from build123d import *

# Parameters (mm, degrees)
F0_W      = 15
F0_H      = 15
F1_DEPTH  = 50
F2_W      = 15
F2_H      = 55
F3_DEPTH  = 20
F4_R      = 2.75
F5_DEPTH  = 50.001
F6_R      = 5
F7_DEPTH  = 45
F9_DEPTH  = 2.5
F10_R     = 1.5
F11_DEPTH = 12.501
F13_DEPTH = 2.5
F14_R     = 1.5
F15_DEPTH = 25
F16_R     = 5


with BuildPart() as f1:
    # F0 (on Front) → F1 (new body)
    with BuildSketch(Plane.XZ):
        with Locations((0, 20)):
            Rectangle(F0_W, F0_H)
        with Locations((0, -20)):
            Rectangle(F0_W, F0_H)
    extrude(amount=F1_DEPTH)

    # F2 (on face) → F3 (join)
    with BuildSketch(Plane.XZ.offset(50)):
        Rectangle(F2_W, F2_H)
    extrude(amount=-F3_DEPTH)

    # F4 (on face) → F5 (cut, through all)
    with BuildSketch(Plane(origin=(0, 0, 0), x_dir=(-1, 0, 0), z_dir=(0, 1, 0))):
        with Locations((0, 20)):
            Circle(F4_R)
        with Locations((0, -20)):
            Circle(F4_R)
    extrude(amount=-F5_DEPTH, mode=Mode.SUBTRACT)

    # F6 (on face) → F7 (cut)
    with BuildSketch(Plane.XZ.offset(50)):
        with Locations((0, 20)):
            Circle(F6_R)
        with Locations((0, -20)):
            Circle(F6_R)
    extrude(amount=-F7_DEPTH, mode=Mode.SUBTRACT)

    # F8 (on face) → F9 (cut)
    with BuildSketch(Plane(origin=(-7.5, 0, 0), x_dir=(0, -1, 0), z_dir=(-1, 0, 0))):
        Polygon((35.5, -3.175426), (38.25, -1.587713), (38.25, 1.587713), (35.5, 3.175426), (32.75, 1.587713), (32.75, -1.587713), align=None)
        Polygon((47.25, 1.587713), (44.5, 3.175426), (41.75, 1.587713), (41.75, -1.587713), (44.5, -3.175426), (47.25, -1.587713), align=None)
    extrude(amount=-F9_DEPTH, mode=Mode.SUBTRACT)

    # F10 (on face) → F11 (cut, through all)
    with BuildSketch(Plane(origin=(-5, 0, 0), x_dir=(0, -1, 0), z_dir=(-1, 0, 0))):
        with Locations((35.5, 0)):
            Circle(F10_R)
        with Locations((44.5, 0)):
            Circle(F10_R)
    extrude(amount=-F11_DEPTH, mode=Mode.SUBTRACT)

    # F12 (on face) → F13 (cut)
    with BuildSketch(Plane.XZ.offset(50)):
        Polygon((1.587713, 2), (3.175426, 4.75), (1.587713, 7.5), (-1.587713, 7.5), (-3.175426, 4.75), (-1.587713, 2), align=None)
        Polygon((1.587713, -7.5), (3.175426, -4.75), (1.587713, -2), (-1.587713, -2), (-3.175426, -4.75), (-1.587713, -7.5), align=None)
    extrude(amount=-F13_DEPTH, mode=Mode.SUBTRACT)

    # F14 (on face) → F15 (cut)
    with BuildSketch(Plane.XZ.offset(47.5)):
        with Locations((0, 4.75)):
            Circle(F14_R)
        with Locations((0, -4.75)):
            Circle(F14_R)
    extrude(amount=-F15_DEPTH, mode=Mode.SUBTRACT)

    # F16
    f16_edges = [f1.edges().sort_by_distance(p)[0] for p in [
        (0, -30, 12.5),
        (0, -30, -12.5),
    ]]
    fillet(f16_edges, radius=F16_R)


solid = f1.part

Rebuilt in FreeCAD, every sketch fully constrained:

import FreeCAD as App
import Part
import Sketcher
from FreeCAD import Vector
Q = App.Units.Quantity


def edges_at(feature, points):
    """Names of the edges that pass closest to the given points."""
    edges = feature.Shape.Edges
    near = lambda p: min(range(len(edges)), key=lambda i: edges[i].distToShape(Part.Vertex(*p))[0])
    return sorted({f"Edge{near(p) + 1}" for p in points})

doc = App.newDocument("Part")
params = doc.addObject("Spreadsheet::Sheet", "Params")
for row, (alias, value) in enumerate([
    ("sketch1_width", "15 mm"),
    ("pad1_length", "50 mm"),
    ("sketch2_width", "15 mm"),
    ("sketch2_height", "55 mm"),
    ("pad2_length", "20 mm"),
    ("sketch3_diameter", "5.5 mm"),
    ("sketch4_diameter", "10 mm"),
    ("pocket2_length", "45 mm"),
    ("pocket3_length", "2.5 mm"),
    ("sketch6_diameter", "3 mm"),
    ("pocket5_length", "2.5 mm"),
    ("sketch8_diameter", "3 mm"),
    ("pocket6_length", "25 mm"),
    ("fillet_radius", "5 mm"),
], start=1):
    params.set(f"A{row}", alias)
    params.set(f"B{row}", "=" + value)
    params.setAlias(f"B{row}", alias)

body = doc.addObject("PartDesign::Body", "Body")
body.AllowCompound = True

# Sketch on XZ plane
sketch1 = body.newObject("Sketcher::SketchObject", "Sketch")
sketch1.AttachmentSupport = (doc.getObject("XZ_Plane"), [""])
sketch1.MapMode = "FlatFace"
sketch1.addGeometry([
    Part.LineSegment(Vector(-8, 28, 0), Vector(-8, 12, 0)),  # 0
    Part.LineSegment(Vector(-8, 12, 0), Vector(8, 12, 0)),  # 1
    Part.LineSegment(Vector(8, 12, 0), Vector(8, 28, 0)),  # 2
    Part.LineSegment(Vector(8, 28, 0), Vector(-8, 28, 0)),  # 3
    Part.LineSegment(Vector(-8, -12, 0), Vector(-8, -28, 0)),  # 4
    Part.LineSegment(Vector(-8, -28, 0), Vector(8, -28, 0)),  # 5
    Part.LineSegment(Vector(8, -28, 0), Vector(8, -12, 0)),  # 6
    Part.LineSegment(Vector(8, -12, 0), Vector(-8, -12, 0)),  # 7
], False)
sketch1.addConstraint([
    Sketcher.Constraint("Coincident", 0, 2, 1, 1),
    Sketcher.Constraint("Coincident", 1, 2, 2, 1),
    Sketcher.Constraint("Coincident", 2, 2, 3, 1),
    Sketcher.Constraint("Coincident", 3, 2, 0, 1),
    Sketcher.Constraint("Coincident", 4, 2, 5, 1),
    Sketcher.Constraint("Coincident", 5, 2, 6, 1),
    Sketcher.Constraint("Coincident", 6, 2, 7, 1),
    Sketcher.Constraint("Coincident", 7, 2, 4, 1),
    Sketcher.Constraint("Vertical", 0),
    Sketcher.Constraint("Horizontal", 1),
    Sketcher.Constraint("Vertical", 2),
    Sketcher.Constraint("Horizontal", 3),
    Sketcher.Constraint("Vertical", 4),
    Sketcher.Constraint("Horizontal", 5),
    Sketcher.Constraint("Vertical", 6),
    Sketcher.Constraint("Horizontal", 7),
    Sketcher.Constraint("Symmetric", 2, 2, 4, 2, -1, 1),
    Sketcher.Constraint("Symmetric", 0, 2, 6, 2, -1, 1),
    Sketcher.Constraint("Vertical", 3, 2, 4, 2),
    Sketcher.Constraint("Equal", 7, 0),
    Sketcher.Constraint("DistanceX", 1, 1, 1, 2, 15.0),
    Sketcher.Constraint("DistanceY", 4, 2, 0, 2, 40.0),
])
sketch1.setExpression("Constraints[20]", "Params.sketch1_width")
pad1 = body.newObject("PartDesign::Pad", "Pad")
pad1.Profile = sketch1
pad1.setExpression("Length", "Params.pad1_length")

# Sketch on XZ plane
sketch2 = body.newObject("Sketcher::SketchObject", "Sketch001")
sketch2.AttachmentSupport = (doc.getObject("XZ_Plane"), [""])
sketch2.MapMode = "FlatFace"
sketch2.AttachmentOffset = App.Placement(Vector(0, 0, 50), App.Rotation())
sketch2.addGeometry([
    Part.LineSegment(Vector(-8, 28, 0), Vector(-8, -28, 0)),
    Part.LineSegment(Vector(-8, -28, 0), Vector(8, -28, 0)),
    Part.LineSegment(Vector(8, -28, 0), Vector(8, 28, 0)),
    Part.LineSegment(Vector(8, 28, 0), Vector(-8, 28, 0)),
], False)
sketch2.addConstraint([
    Sketcher.Constraint("Coincident", 0, 2, 1, 1),
    Sketcher.Constraint("Coincident", 1, 2, 2, 1),
    Sketcher.Constraint("Coincident", 2, 2, 3, 1),
    Sketcher.Constraint("Coincident", 3, 2, 0, 1),
    Sketcher.Constraint("Vertical", 0),
    Sketcher.Constraint("Horizontal", 1),
    Sketcher.Constraint("Vertical", 2),
    Sketcher.Constraint("Horizontal", 3),
    Sketcher.Constraint("Symmetric", 0, 2, 2, 2, -1, 1),
    Sketcher.Constraint("DistanceX", 1, 1, 1, 2, 15.0),
    Sketcher.Constraint("DistanceY", 0, 2, 0, 1, 55.0),
])
sketch2.setExpression("Constraints[9]", "Params.sketch2_width")
sketch2.setExpression("Constraints[10]", "Params.sketch2_height")
pad2 = body.newObject("PartDesign::Pad", "Pad001")
pad2.Profile = sketch2
pad2.setExpression("Length", "Params.pad2_length")
pad2.Reversed = True

# Sketch on XZ plane
sketch3 = body.newObject("Sketcher::SketchObject", "Sketch002")
sketch3.AttachmentSupport = (doc.getObject("XZ_Plane"), [""])
sketch3.MapMode = "FlatFace"
sketch3.addGeometry([
    Part.Circle(Vector(0, 20, 0), Vector(0, 0, 1), 2.8),
    Part.Circle(Vector(0, -20, 0), Vector(0, 0, 1), 2.8),
], False)
sketch3.addConstraint([
    Sketcher.Constraint("Equal", 0, 1),
    Sketcher.Constraint("Symmetric", 0, 3, 1, 3, -1, 1),
    Sketcher.Constraint("PointOnObject", 0, 3, -2),
    Sketcher.Constraint("Diameter", 0, 5.5),
    Sketcher.Constraint("DistanceY", -1, 1, 0, 3, 20.0),
])
sketch3.setExpression("Constraints[3]", "Params.sketch3_diameter")
pocket1 = body.newObject("PartDesign::Pocket", "Pocket")
pocket1.Profile = sketch3
pocket1.Type = "ThroughAll"
pocket1.Reversed = True

# Sketch on XZ plane
sketch4 = body.newObject("Sketcher::SketchObject", "Sketch003")
sketch4.AttachmentSupport = (doc.getObject("XZ_Plane"), [""])
sketch4.MapMode = "FlatFace"
sketch4.AttachmentOffset = App.Placement(Vector(0, 0, 50), App.Rotation())
sketch4.addGeometry([
    Part.Circle(Vector(0, 20, 0), Vector(0, 0, 1), 5),
    Part.Circle(Vector(0, -20, 0), Vector(0, 0, 1), 5),
], False)
sketch4.addConstraint([
    Sketcher.Constraint("Equal", 0, 1),
    Sketcher.Constraint("Symmetric", 0, 3, 1, 3, -1, 1),
    Sketcher.Constraint("PointOnObject", 0, 3, -2),
    Sketcher.Constraint("Diameter", 0, 10.0),
    Sketcher.Constraint("DistanceY", -1, 1, 0, 3, 20.0),
])
sketch4.setExpression("Constraints[3]", "Params.sketch4_diameter")
pocket2 = body.newObject("PartDesign::Pocket", "Pocket001")
pocket2.Profile = sketch4
pocket2.setExpression("Length", "Params.pocket2_length")

# Sketch on YZ plane
sketch5 = body.newObject("Sketcher::SketchObject", "Sketch004")
sketch5.AttachmentSupport = (doc.getObject("YZ_Plane"), [""])
sketch5.MapMode = "FlatFace"
sketch5.AttachmentOffset = App.Placement(Vector(0, 0, -7.5), App.Rotation())
sketch5.addGeometry([
    Part.LineSegment(Vector(-35.5, -3.2, 0), Vector(-38.2, -1.6, 0)),  # 0
    Part.LineSegment(Vector(-38.2, -1.6, 0), Vector(-38.2, 1.6, 0)),  # 1
    Part.LineSegment(Vector(-38.2, 1.6, 0), Vector(-35.5, 3.2, 0)),  # 2
    Part.LineSegment(Vector(-35.5, 3.2, 0), Vector(-32.8, 1.6, 0)),  # 3
    Part.LineSegment(Vector(-32.8, 1.6, 0), Vector(-32.8, -1.6, 0)),  # 4
    Part.LineSegment(Vector(-32.8, -1.6, 0), Vector(-35.5, -3.2, 0)),  # 5
    Part.LineSegment(Vector(-47.2, 1.6, 0), Vector(-44.5, 3.2, 0)),  # 6
    Part.LineSegment(Vector(-44.5, 3.2, 0), Vector(-41.8, 1.6, 0)),  # 7
    Part.LineSegment(Vector(-41.8, 1.6, 0), Vector(-41.8, -1.6, 0)),  # 8
    Part.LineSegment(Vector(-41.8, -1.6, 0), Vector(-44.5, -3.2, 0)),  # 9
    Part.LineSegment(Vector(-44.5, -3.2, 0), Vector(-47.2, -1.6, 0)),  # 10
    Part.LineSegment(Vector(-47.2, -1.6, 0), Vector(-47.2, 1.6, 0)),  # 11
], False)
sketch5.addConstraint([
    Sketcher.Constraint("Coincident", 0, 2, 1, 1),
    Sketcher.Constraint("Coincident", 1, 2, 2, 1),
    Sketcher.Constraint("Coincident", 2, 2, 3, 1),
    Sketcher.Constraint("Coincident", 3, 2, 4, 1),
    Sketcher.Constraint("Coincident", 4, 2, 5, 1),
    Sketcher.Constraint("Coincident", 5, 2, 0, 1),
    Sketcher.Constraint("Coincident", 6, 2, 7, 1),
    Sketcher.Constraint("Coincident", 7, 2, 8, 1),
    Sketcher.Constraint("Coincident", 8, 2, 9, 1),
    Sketcher.Constraint("Coincident", 9, 2, 10, 1),
    Sketcher.Constraint("Coincident", 10, 2, 11, 1),
    Sketcher.Constraint("Coincident", 11, 2, 6, 1),
    Sketcher.Constraint("Vertical", 1),
    Sketcher.Constraint("Vertical", 4),
    Sketcher.Constraint("Vertical", 8),
    Sketcher.Constraint("Vertical", 11),
    Sketcher.Constraint("Symmetric", 2, 2, 5, 2, -1),
    Sketcher.Constraint("Symmetric", 6, 2, 9, 2, -1),
    Sketcher.Constraint("Parallel", 0, 3),
    Sketcher.Constraint("Parallel", 2, 5),
    Sketcher.Constraint("Parallel", 5, 6),
    Sketcher.Constraint("Parallel", 3, 7),
    Sketcher.Constraint("Parallel", 6, 9),
    Sketcher.Constraint("Parallel", 7, 10),
    Sketcher.Constraint("Horizontal", 1, 2, 3, 2),
    Sketcher.Constraint("Horizontal", 0, 2, 4, 2),
    Sketcher.Constraint("Horizontal", 2, 2, 6, 2),
    Sketcher.Constraint("Horizontal", 3, 2, 7, 2),
    Sketcher.Constraint("Horizontal", 8, 2, 10, 2),
    Sketcher.Constraint("Angle", 0, Q("150.000004 deg")),
    Sketcher.Constraint("DistanceX", 6, 2, 2, 2, 9.0),
    Sketcher.Constraint("DistanceX", 2, 2, -1, 1, 35.5),
    Sketcher.Constraint("DistanceX", 1, 2, 3, 2, 5.5),
    Sketcher.Constraint("DistanceY", 1, 1, 1, 2, 3.175426),
])
pocket3 = body.newObject("PartDesign::Pocket", "Pocket002")
pocket3.Profile = sketch5
pocket3.setExpression("Length", "Params.pocket3_length")
pocket3.Reversed = True

# Sketch on YZ plane
sketch6 = body.newObject("Sketcher::SketchObject", "Sketch005")
sketch6.AttachmentSupport = (doc.getObject("YZ_Plane"), [""])
sketch6.MapMode = "FlatFace"
sketch6.AttachmentOffset = App.Placement(Vector(0, 0, -5), App.Rotation())
sketch6.addGeometry([
    Part.Circle(Vector(-35.5, 0, 0), Vector(0, 0, 1), 1.5),
    Part.Circle(Vector(-44.5, 0, 0), Vector(0, 0, 1), 1.5),
], False)
sketch6.addConstraint([
    Sketcher.Constraint("Equal", 0, 1),
    Sketcher.Constraint("PointOnObject", 0, 3, -1),
    Sketcher.Constraint("PointOnObject", 1, 3, -1),
    Sketcher.Constraint("Diameter", 0, 3.0),
    Sketcher.Constraint("DistanceX", 1, 3, 0, 3, 9.0),
    Sketcher.Constraint("DistanceX", 0, 3, -1, 1, 35.5),
])
sketch6.setExpression("Constraints[3]", "Params.sketch6_diameter")
pocket4 = body.newObject("PartDesign::Pocket", "Pocket003")
pocket4.Profile = sketch6
pocket4.Type = "ThroughAll"
pocket4.Reversed = True

# Sketch on XZ plane
sketch7 = body.newObject("Sketcher::SketchObject", "Sketch006")
sketch7.AttachmentSupport = (doc.getObject("XZ_Plane"), [""])
sketch7.MapMode = "FlatFace"
sketch7.AttachmentOffset = App.Placement(Vector(0, 0, 50), App.Rotation())
sketch7.addGeometry([
    Part.LineSegment(Vector(1.6, 2, 0), Vector(3.2, 4.8, 0)),  # 0
    Part.LineSegment(Vector(3.2, 4.8, 0), Vector(1.6, 7.5, 0)),  # 1
    Part.LineSegment(Vector(1.6, 7.5, 0), Vector(-1.6, 7.5, 0)),  # 2
    Part.LineSegment(Vector(-1.6, 7.5, 0), Vector(-3.2, 4.8, 0)),  # 3
    Part.LineSegment(Vector(-3.2, 4.8, 0), Vector(-1.6, 2, 0)),  # 4
    Part.LineSegment(Vector(-1.6, 2, 0), Vector(1.6, 2, 0)),  # 5
    Part.LineSegment(Vector(1.6, -7.5, 0), Vector(3.2, -4.8, 0)),  # 6
    Part.LineSegment(Vector(3.2, -4.8, 0), Vector(1.6, -2, 0)),  # 7
    Part.LineSegment(Vector(1.6, -2, 0), Vector(-1.6, -2, 0)),  # 8
    Part.LineSegment(Vector(-1.6, -2, 0), Vector(-3.2, -4.8, 0)),  # 9
    Part.LineSegment(Vector(-3.2, -4.8, 0), Vector(-1.6, -7.5, 0)),  # 10
    Part.LineSegment(Vector(-1.6, -7.5, 0), Vector(1.6, -7.5, 0)),  # 11
], False)
sketch7.addConstraint([
    Sketcher.Constraint("Coincident", 0, 2, 1, 1),
    Sketcher.Constraint("Coincident", 1, 2, 2, 1),
    Sketcher.Constraint("Coincident", 2, 2, 3, 1),
    Sketcher.Constraint("Coincident", 3, 2, 4, 1),
    Sketcher.Constraint("Coincident", 4, 2, 5, 1),
    Sketcher.Constraint("Coincident", 5, 2, 0, 1),
    Sketcher.Constraint("Coincident", 6, 2, 7, 1),
    Sketcher.Constraint("Coincident", 7, 2, 8, 1),
    Sketcher.Constraint("Coincident", 8, 2, 9, 1),
    Sketcher.Constraint("Coincident", 9, 2, 10, 1),
    Sketcher.Constraint("Coincident", 10, 2, 11, 1),
    Sketcher.Constraint("Coincident", 11, 2, 6, 1),
    Sketcher.Constraint("Horizontal", 2),
    Sketcher.Constraint("Horizontal", 5),
    Sketcher.Constraint("Horizontal", 8),
    Sketcher.Constraint("Horizontal", 11),
    Sketcher.Constraint("Symmetric", 3, 2, 6, 2, -1, 1),
    Sketcher.Constraint("Symmetric", 4, 2, 7, 2, -1, 1),
    Sketcher.Constraint("Symmetric", 0, 2, 9, 2, -1, 1),
    Sketcher.Constraint("Symmetric", 1, 2, 10, 2, -1, 1),
    Sketcher.Constraint("Symmetric", 0, 2, 3, 2, -2),
    Sketcher.Constraint("Parallel", 0, 3),
    Sketcher.Constraint("Parallel", 1, 4),
    Sketcher.Constraint("Parallel", 3, 6),
    Sketcher.Constraint("Parallel", 6, 9),
    Sketcher.Constraint("Vertical", 2, 2, 4, 2),
    Sketcher.Constraint("Vertical", 1, 2, 5, 2),
    Sketcher.Constraint("Angle", 0, Q("60.000004 deg")),
    Sketcher.Constraint("DistanceY", -1, 1, 4, 2, 2.0),
    Sketcher.Constraint("DistanceY", -1, 1, 1, 2, 7.5),
    Sketcher.Constraint("DistanceX", 2, 2, 2, 1, 3.175426),
])
pocket5 = body.newObject("PartDesign::Pocket", "Pocket004")
pocket5.Profile = sketch7
pocket5.setExpression("Length", "Params.pocket5_length")

# Sketch on XZ plane
sketch8 = body.newObject("Sketcher::SketchObject", "Sketch007")
sketch8.AttachmentSupport = (doc.getObject("XZ_Plane"), [""])
sketch8.MapMode = "FlatFace"
sketch8.AttachmentOffset = App.Placement(Vector(0, 0, 47.5), App.Rotation())
sketch8.addGeometry([
    Part.Circle(Vector(0, 4.8, 0), Vector(0, 0, 1), 1.5),
    Part.Circle(Vector(0, -4.8, 0), Vector(0, 0, 1), 1.5),
], False)
sketch8.addConstraint([
    Sketcher.Constraint("Equal", 0, 1),
    Sketcher.Constraint("Symmetric", 0, 3, 1, 3, -1, 1),
    Sketcher.Constraint("PointOnObject", 0, 3, -2),
    Sketcher.Constraint("Diameter", 0, 3.0),
    Sketcher.Constraint("DistanceY", 1, 3, 0, 3, 9.5),
])
sketch8.setExpression("Constraints[3]", "Params.sketch8_diameter")
pocket6 = body.newObject("PartDesign::Pocket", "Pocket005")
pocket6.Profile = sketch8
pocket6.setExpression("Length", "Params.pocket6_length")
doc.recompute()

fillet = body.newObject("PartDesign::Fillet", "Fillet")
fillet.Base = (pocket6, edges_at(pocket6, [(0, -30, 12.5), (0, -30, -12.5)]))
fillet.setExpression("Radius", "Params.fillet_radius")

doc.recompute()
